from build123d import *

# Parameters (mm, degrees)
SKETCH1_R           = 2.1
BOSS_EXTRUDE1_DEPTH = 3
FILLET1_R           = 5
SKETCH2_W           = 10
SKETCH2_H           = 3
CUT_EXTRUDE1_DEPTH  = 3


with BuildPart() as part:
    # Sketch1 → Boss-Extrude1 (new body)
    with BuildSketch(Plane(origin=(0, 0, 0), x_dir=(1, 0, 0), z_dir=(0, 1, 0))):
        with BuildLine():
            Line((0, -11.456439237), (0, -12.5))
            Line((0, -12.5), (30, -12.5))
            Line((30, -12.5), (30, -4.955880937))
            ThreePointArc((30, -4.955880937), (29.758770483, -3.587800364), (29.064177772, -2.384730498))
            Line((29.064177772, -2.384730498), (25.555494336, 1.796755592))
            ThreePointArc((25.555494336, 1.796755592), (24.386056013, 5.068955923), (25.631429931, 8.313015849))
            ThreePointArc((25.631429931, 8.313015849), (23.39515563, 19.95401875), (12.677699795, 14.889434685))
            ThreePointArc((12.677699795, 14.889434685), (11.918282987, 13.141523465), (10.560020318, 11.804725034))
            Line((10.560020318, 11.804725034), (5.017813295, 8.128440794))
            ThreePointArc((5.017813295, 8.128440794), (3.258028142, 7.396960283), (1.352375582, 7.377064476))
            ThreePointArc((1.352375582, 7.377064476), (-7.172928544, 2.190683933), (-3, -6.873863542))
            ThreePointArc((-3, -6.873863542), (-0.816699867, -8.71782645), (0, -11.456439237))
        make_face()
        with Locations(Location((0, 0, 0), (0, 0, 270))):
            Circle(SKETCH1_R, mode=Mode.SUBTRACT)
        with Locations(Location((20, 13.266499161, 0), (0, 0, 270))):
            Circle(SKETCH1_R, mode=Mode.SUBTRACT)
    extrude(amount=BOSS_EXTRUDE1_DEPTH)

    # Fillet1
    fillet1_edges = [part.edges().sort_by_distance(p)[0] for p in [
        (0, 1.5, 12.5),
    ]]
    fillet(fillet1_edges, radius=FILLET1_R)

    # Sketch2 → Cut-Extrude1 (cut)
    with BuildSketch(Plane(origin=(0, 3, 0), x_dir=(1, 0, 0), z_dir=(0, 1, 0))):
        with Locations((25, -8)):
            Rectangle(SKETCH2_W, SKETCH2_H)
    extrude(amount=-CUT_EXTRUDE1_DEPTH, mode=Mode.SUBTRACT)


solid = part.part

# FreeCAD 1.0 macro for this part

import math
import FreeCAD as App
import Part
import Sketcher
Q = App.Units.Quantity


def edges_at(feature, points):
    """Names of the edges that pass closest to the given points."""
    edges = feature.Shape.Edges
    near = lambda p: min(range(len(edges)), key=lambda i: edges[i].distToShape(Part.Vertex(*p))[0])
    return sorted({f"Edge{near(p) + 1}" for p in points})

doc = App.newDocument("Part")
body = doc.addObject("PartDesign::Body", "Body")

# Sketch on XZ plane
sketch1 = doc.addObject("Sketcher::SketchObject", "Sketch")
body.addObject(sketch1)
sketch1.AttachmentSupport = (doc.XZ_Plane, [""])
sketch1.MapMode = "FlatFace"
sketch1.addGeometry(Part.LineSegment(App.Vector(0, 11.456439, 0), App.Vector(0, 12.5, 0)), False)
sketch1.addGeometry(Part.LineSegment(App.Vector(0, 12.5, 0), App.Vector(30, 12.5, 0)), False)
sketch1.addGeometry(Part.LineSegment(App.Vector(30, 12.5, 0), App.Vector(30, 4.955881, 0)), False)
sketch1.addGeometry(Part.ArcOfCircle(Part.Circle(App.Vector(26, 4.955881, 0), App.Vector(0, 0, 1), 4), math.radians(-40), math.radians(0)), False)
sketch1.addGeometry(Part.LineSegment(App.Vector(29.064178, 2.38473, 0), App.Vector(25.555494, -1.796756, 0)), False)
sketch1.addGeometry(Part.ArcOfCircle(Part.Circle(App.Vector(29.385717, -5.010694, 0), App.Vector(0, 0, 1), 5), math.radians(140), math.radians(221.335303)), False)
sketch1.addGeometry(Part.ArcOfCircle(Part.Circle(App.Vector(20, -13.266499, 0), App.Vector(0, 0, 1), 7.5), math.radians(-167.502829), math.radians(41.335303)), False)
sketch1.addGeometry(Part.ArcOfCircle(Part.Circle(App.Vector(7.796166, -15.971392, 0), App.Vector(0, 0, 1), 5), math.radians(12.497171), math.radians(56.44269)), False)
sketch1.addGeometry(Part.LineSegment(App.Vector(10.56002, -11.804725, 0), App.Vector(5.017813, -8.128441, 0)), False)
sketch1.addGeometry(Part.ArcOfCircle(Part.Circle(App.Vector(2.253959, -12.295107, 0), App.Vector(0, 0, 1), 5), math.radians(56.44269), math.radians(100.38821)), False)
sketch1.addGeometry(Part.ArcOfCircle(Part.Circle(App.Vector(0, 0, 0), App.Vector(0, 0, 1), 7.5), math.radians(113.578178), math.radians(280.38821)), False)
sketch1.addGeometry(Part.ArcOfCircle(Part.Circle(App.Vector(-5, 11.456439, 0), App.Vector(0, 0, 1), 5), math.radians(-66.421822), math.radians(0)), False)
sketch1.addGeometry(Part.Circle(App.Vector(0, 0, 0), App.Vector(0, 0, 1), 2.1), False)
sketch1.addGeometry(Part.Circle(App.Vector(20, -13.266499, 0), App.Vector(0, 0, 1), 2.1), False)
sketch1.addConstraint(Sketcher.Constraint("Coincident", 0, 2, 1, 1))
sketch1.addConstraint(Sketcher.Constraint("Coincident", 1, 2, 2, 1))
sketch1.addConstraint(Sketcher.Constraint("Tangent", 2, 2, 3, 2))
sketch1.addConstraint(Sketcher.Constraint("Tangent", 3, 1, 4, 1))
sketch1.addConstraint(Sketcher.Constraint("Tangent", 4, 2, 5, 1))
sketch1.addConstraint(Sketcher.Constraint("Tangent", 5, 2, 6, 2))
sketch1.addConstraint(Sketcher.Constraint("Tangent", 6, 1, 7, 1))
sketch1.addConstraint(Sketcher.Constraint("Tangent", 7, 2, 8, 1))
sketch1.addConstraint(Sketcher.Constraint("Tangent", 8, 2, 9, 1))
sketch1.addConstraint(Sketcher.Constraint("Tangent", 9, 2, 10, 2))
sketch1.addConstraint(Sketcher.Constraint("Tangent", 10, 1, 11, 1))
sketch1.addConstraint(Sketcher.Constraint("Tangent", 11, 2, 0, 1))
sketch1.addConstraint(Sketcher.Constraint("Vertical", 0))
sketch1.addConstraint(Sketcher.Constraint("Horizontal", 1))
sketch1.addConstraint(Sketcher.Constraint("Vertical", 2))
sketch1.addConstraint(Sketcher.Constraint("Coincident", 10, 3, -1, 1))
sketch1.addConstraint(Sketcher.Constraint("Coincident", 12, 3, -1, 1))
sketch1.addConstraint(Sketcher.Constraint("Coincident", 13, 3, 6, 3))
sketch1.addConstraint(Sketcher.Constraint("Equal", 5, 7))
sketch1.addConstraint(Sketcher.Constraint("Equal", 7, 9))
sketch1.addConstraint(Sketcher.Constraint("Equal", 6, 10))
sketch1.addConstraint(Sketcher.Constraint("Equal", 9, 11))
sketch1.addConstraint(Sketcher.Constraint("Equal", 12, 13))
sketch1.addConstraint(Sketcher.Constraint("PointOnObject", 0, 2, -2))
sketch1.addConstraint(Sketcher.Constraint("Radius", 3, Q("4 mm")))
sketch1.addConstraint(Sketcher.Constraint("Radius", 5, Q("5 mm")))
sketch1.addConstraint(Sketcher.Constraint("Diameter", 12, Q("4.2 mm")))
sketch1.addConstraint(Sketcher.Constraint("Radius", 6, Q("7.5 mm")))
sketch1.addConstraint(Sketcher.Constraint("DistanceX", 1, 1, 1, 2, Q("30 mm")))
sketch1.addConstraint(Sketcher.Constraint("Angle", 4, Q("-130 deg")))
sketch1.addConstraint(Sketcher.Constraint("DistanceX", -1, 1, 6, 3, Q("20 mm")))
sketch1.addConstraint(Sketcher.Constraint("DistanceY", -1, 1, 0, 2, Q("12.5 mm")))
sketch1.addConstraint(Sketcher.Constraint("DistanceY", 2, 2, 2, 1, Q("7.544119 mm")))
sketch1.addConstraint(Sketcher.Constraint("DistanceY", 6, 3, -1, 1, Q("13.266499 mm")))
sketch1.addConstraint(Sketcher.Constraint("DistanceX", -1, 1, 6, 1, Q("12.6777 mm")))
sketch1.addConstraint(Sketcher.Constraint("Distance", 8, Q("6.650648 mm")))
pad1 = doc.addObject("PartDesign::Pad", "Pad")
body.addObject(pad1)
pad1.Profile = sketch1
pad1.Length = 3
pad1.Reversed = True
doc.recompute()

fillet = doc.addObject("PartDesign::Fillet", "Fillet")
body.addObject(fillet)
fillet.Base = (pad1, edges_at(pad1, [(0, 1.5, 12.5)]))
fillet.Radius = 5

# Sketch on XZ plane
sketch2 = doc.addObject("Sketcher::SketchObject", "Sketch001")
body.addObject(sketch2)
sketch2.AttachmentSupport = (doc.XZ_Plane, [""])
sketch2.MapMode = "FlatFace"
sketch2.AttachmentOffset = App.Placement(App.Vector(0, 0, -3), App.Rotation())
sketch2.addGeometry(Part.LineSegment(App.Vector(20, 6.5, 0), App.Vector(20, 9.5, 0)), False)
sketch2.addGeometry(Part.LineSegment(App.Vector(20, 9.5, 0), App.Vector(30, 9.5, 0)), False)
sketch2.addGeometry(Part.LineSegment(App.Vector(30, 9.5, 0), App.Vector(30, 6.5, 0)), False)
sketch2.addGeometry(Part.LineSegment(App.Vector(30, 6.5, 0), App.Vector(20, 6.5, 0)), False)
sketch2.addConstraint(Sketcher.Constraint("Coincident", 0, 2, 1, 1))
sketch2.addConstraint(Sketcher.Constraint("Coincident", 1, 2, 2, 1))
sketch2.addConstraint(Sketcher.Constraint("Coincident", 2, 2, 3, 1))
sketch2.addConstraint(Sketcher.Constraint("Coincident", 3, 2, 0, 1))
sketch2.addConstraint(Sketcher.Constraint("Vertical", 0))
sketch2.addConstraint(Sketcher.Constraint("Horizontal", 1))
sketch2.addConstraint(Sketcher.Constraint("Vertical", 2))
sketch2.addConstraint(Sketcher.Constraint("Horizontal", 3))
sketch2.addConstraint(Sketcher.Constraint("DistanceX", 1, 1, 1, 2, Q("10 mm")))
sketch2.addConstraint(Sketcher.Constraint("DistanceY", 0, 1, 0, 2, Q("3 mm")))
sketch2.addConstraint(Sketcher.Constraint("DistanceX", -1, 1, 0, 2, Q("20 mm")))
sketch2.addConstraint(Sketcher.Constraint("DistanceY", -1, 1, 0, 2, Q("9.5 mm")))
pocket1 = doc.addObject("PartDesign::Pocket", "Pocket")
body.addObject(pocket1)
pocket1.Profile = sketch2
pocket1.Length = 3
pocket1.Reversed = True

doc.recompute()
